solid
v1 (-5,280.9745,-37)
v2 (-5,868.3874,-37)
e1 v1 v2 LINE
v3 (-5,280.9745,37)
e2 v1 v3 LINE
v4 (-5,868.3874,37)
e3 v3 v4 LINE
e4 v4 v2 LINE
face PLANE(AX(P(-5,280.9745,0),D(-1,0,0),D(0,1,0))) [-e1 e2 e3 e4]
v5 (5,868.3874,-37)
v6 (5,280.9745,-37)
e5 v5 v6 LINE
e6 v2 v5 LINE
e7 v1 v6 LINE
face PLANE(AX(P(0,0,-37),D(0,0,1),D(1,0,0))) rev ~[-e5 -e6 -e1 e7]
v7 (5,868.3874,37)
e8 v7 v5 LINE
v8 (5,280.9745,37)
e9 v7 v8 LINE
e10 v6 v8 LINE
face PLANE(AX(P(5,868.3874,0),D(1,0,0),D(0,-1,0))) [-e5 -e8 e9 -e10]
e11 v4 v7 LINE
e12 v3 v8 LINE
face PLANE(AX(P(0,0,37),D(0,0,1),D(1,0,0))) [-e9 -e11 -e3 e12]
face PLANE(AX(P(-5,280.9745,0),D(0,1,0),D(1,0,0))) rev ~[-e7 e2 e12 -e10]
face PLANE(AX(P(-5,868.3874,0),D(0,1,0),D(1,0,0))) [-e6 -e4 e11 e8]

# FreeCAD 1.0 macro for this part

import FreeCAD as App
import Part
import Sketcher
Q = App.Units.Quantity

doc = App.newDocument("Part")
params = doc.addObject("Spreadsheet::Sheet", "Params")
for row, (alias, value) in enumerate([
    ("pad1_length", "74 mm"),
], start=1):
    params.set(f"A{row}", alias)
    params.set(f"B{row}", "=" + value)
    params.setAlias(f"B{row}", alias)

body = doc.addObject("PartDesign::Body", "Body")

# Sketch on XY plane
sketch1 = body.newObject("Sketcher::SketchObject", "Sketch")
sketch1.AttachmentSupport = (doc.getObject("XY_Plane"), [""])
sketch1.MapMode = "FlatFace"
sketch1.addGeometry(Part.LineSegment(App.Vector(-5, 868, 0), App.Vector(-5, 281, 0)), False)
sketch1.addGeometry(Part.LineSegment(App.Vector(-5, 281, 0), App.Vector(5, 281, 0)), False)
sketch1.addGeometry(Part.LineSegment(App.Vector(5, 281, 0), App.Vector(5, 868, 0)), False)
sketch1.addGeometry(Part.LineSegment(App.Vector(5, 868, 0), App.Vector(-5, 868, 0)), False)
sketch1.addConstraint(Sketcher.Constraint("Coincident", 0, 2, 1, 1))
sketch1.addConstraint(Sketcher.Constraint("Coincident", 1, 2, 2, 1))
sketch1.addConstraint(Sketcher.Constraint("Coincident", 2, 2, 3, 1))
sketch1.addConstraint(Sketcher.Constraint("Coincident", 3, 2, 0, 1))
sketch1.addConstraint(Sketcher.Constraint("Vertical", 0))
sketch1.addConstraint(Sketcher.Constraint("Horizontal", 1))
sketch1.addConstraint(Sketcher.Constraint("Vertical", 2))
sketch1.addConstraint(Sketcher.Constraint("Horizontal", 3))
sketch1.addConstraint(Sketcher.Constraint("DistanceX", 0, 2, -1, 1, Q("5 mm")))
sketch1.addConstraint(Sketcher.Constraint("DistanceX", -1, 1, 1, 2, Q("5 mm")))
sketch1.addConstraint(Sketcher.Constraint("DistanceY", 0, 2, 0, 1, Q("587.413 mm")))
sketch1.addConstraint(Sketcher.Constraint("DistanceY", -1, 1, 0, 2, Q("280.9745 mm")))
pad1 = body.newObject("PartDesign::Pad", "Pad")
pad1.Profile = sketch1
pad1.setExpression("Length", "Params.pad1_length")
pad1.Midplane = True

doc.recompute()
